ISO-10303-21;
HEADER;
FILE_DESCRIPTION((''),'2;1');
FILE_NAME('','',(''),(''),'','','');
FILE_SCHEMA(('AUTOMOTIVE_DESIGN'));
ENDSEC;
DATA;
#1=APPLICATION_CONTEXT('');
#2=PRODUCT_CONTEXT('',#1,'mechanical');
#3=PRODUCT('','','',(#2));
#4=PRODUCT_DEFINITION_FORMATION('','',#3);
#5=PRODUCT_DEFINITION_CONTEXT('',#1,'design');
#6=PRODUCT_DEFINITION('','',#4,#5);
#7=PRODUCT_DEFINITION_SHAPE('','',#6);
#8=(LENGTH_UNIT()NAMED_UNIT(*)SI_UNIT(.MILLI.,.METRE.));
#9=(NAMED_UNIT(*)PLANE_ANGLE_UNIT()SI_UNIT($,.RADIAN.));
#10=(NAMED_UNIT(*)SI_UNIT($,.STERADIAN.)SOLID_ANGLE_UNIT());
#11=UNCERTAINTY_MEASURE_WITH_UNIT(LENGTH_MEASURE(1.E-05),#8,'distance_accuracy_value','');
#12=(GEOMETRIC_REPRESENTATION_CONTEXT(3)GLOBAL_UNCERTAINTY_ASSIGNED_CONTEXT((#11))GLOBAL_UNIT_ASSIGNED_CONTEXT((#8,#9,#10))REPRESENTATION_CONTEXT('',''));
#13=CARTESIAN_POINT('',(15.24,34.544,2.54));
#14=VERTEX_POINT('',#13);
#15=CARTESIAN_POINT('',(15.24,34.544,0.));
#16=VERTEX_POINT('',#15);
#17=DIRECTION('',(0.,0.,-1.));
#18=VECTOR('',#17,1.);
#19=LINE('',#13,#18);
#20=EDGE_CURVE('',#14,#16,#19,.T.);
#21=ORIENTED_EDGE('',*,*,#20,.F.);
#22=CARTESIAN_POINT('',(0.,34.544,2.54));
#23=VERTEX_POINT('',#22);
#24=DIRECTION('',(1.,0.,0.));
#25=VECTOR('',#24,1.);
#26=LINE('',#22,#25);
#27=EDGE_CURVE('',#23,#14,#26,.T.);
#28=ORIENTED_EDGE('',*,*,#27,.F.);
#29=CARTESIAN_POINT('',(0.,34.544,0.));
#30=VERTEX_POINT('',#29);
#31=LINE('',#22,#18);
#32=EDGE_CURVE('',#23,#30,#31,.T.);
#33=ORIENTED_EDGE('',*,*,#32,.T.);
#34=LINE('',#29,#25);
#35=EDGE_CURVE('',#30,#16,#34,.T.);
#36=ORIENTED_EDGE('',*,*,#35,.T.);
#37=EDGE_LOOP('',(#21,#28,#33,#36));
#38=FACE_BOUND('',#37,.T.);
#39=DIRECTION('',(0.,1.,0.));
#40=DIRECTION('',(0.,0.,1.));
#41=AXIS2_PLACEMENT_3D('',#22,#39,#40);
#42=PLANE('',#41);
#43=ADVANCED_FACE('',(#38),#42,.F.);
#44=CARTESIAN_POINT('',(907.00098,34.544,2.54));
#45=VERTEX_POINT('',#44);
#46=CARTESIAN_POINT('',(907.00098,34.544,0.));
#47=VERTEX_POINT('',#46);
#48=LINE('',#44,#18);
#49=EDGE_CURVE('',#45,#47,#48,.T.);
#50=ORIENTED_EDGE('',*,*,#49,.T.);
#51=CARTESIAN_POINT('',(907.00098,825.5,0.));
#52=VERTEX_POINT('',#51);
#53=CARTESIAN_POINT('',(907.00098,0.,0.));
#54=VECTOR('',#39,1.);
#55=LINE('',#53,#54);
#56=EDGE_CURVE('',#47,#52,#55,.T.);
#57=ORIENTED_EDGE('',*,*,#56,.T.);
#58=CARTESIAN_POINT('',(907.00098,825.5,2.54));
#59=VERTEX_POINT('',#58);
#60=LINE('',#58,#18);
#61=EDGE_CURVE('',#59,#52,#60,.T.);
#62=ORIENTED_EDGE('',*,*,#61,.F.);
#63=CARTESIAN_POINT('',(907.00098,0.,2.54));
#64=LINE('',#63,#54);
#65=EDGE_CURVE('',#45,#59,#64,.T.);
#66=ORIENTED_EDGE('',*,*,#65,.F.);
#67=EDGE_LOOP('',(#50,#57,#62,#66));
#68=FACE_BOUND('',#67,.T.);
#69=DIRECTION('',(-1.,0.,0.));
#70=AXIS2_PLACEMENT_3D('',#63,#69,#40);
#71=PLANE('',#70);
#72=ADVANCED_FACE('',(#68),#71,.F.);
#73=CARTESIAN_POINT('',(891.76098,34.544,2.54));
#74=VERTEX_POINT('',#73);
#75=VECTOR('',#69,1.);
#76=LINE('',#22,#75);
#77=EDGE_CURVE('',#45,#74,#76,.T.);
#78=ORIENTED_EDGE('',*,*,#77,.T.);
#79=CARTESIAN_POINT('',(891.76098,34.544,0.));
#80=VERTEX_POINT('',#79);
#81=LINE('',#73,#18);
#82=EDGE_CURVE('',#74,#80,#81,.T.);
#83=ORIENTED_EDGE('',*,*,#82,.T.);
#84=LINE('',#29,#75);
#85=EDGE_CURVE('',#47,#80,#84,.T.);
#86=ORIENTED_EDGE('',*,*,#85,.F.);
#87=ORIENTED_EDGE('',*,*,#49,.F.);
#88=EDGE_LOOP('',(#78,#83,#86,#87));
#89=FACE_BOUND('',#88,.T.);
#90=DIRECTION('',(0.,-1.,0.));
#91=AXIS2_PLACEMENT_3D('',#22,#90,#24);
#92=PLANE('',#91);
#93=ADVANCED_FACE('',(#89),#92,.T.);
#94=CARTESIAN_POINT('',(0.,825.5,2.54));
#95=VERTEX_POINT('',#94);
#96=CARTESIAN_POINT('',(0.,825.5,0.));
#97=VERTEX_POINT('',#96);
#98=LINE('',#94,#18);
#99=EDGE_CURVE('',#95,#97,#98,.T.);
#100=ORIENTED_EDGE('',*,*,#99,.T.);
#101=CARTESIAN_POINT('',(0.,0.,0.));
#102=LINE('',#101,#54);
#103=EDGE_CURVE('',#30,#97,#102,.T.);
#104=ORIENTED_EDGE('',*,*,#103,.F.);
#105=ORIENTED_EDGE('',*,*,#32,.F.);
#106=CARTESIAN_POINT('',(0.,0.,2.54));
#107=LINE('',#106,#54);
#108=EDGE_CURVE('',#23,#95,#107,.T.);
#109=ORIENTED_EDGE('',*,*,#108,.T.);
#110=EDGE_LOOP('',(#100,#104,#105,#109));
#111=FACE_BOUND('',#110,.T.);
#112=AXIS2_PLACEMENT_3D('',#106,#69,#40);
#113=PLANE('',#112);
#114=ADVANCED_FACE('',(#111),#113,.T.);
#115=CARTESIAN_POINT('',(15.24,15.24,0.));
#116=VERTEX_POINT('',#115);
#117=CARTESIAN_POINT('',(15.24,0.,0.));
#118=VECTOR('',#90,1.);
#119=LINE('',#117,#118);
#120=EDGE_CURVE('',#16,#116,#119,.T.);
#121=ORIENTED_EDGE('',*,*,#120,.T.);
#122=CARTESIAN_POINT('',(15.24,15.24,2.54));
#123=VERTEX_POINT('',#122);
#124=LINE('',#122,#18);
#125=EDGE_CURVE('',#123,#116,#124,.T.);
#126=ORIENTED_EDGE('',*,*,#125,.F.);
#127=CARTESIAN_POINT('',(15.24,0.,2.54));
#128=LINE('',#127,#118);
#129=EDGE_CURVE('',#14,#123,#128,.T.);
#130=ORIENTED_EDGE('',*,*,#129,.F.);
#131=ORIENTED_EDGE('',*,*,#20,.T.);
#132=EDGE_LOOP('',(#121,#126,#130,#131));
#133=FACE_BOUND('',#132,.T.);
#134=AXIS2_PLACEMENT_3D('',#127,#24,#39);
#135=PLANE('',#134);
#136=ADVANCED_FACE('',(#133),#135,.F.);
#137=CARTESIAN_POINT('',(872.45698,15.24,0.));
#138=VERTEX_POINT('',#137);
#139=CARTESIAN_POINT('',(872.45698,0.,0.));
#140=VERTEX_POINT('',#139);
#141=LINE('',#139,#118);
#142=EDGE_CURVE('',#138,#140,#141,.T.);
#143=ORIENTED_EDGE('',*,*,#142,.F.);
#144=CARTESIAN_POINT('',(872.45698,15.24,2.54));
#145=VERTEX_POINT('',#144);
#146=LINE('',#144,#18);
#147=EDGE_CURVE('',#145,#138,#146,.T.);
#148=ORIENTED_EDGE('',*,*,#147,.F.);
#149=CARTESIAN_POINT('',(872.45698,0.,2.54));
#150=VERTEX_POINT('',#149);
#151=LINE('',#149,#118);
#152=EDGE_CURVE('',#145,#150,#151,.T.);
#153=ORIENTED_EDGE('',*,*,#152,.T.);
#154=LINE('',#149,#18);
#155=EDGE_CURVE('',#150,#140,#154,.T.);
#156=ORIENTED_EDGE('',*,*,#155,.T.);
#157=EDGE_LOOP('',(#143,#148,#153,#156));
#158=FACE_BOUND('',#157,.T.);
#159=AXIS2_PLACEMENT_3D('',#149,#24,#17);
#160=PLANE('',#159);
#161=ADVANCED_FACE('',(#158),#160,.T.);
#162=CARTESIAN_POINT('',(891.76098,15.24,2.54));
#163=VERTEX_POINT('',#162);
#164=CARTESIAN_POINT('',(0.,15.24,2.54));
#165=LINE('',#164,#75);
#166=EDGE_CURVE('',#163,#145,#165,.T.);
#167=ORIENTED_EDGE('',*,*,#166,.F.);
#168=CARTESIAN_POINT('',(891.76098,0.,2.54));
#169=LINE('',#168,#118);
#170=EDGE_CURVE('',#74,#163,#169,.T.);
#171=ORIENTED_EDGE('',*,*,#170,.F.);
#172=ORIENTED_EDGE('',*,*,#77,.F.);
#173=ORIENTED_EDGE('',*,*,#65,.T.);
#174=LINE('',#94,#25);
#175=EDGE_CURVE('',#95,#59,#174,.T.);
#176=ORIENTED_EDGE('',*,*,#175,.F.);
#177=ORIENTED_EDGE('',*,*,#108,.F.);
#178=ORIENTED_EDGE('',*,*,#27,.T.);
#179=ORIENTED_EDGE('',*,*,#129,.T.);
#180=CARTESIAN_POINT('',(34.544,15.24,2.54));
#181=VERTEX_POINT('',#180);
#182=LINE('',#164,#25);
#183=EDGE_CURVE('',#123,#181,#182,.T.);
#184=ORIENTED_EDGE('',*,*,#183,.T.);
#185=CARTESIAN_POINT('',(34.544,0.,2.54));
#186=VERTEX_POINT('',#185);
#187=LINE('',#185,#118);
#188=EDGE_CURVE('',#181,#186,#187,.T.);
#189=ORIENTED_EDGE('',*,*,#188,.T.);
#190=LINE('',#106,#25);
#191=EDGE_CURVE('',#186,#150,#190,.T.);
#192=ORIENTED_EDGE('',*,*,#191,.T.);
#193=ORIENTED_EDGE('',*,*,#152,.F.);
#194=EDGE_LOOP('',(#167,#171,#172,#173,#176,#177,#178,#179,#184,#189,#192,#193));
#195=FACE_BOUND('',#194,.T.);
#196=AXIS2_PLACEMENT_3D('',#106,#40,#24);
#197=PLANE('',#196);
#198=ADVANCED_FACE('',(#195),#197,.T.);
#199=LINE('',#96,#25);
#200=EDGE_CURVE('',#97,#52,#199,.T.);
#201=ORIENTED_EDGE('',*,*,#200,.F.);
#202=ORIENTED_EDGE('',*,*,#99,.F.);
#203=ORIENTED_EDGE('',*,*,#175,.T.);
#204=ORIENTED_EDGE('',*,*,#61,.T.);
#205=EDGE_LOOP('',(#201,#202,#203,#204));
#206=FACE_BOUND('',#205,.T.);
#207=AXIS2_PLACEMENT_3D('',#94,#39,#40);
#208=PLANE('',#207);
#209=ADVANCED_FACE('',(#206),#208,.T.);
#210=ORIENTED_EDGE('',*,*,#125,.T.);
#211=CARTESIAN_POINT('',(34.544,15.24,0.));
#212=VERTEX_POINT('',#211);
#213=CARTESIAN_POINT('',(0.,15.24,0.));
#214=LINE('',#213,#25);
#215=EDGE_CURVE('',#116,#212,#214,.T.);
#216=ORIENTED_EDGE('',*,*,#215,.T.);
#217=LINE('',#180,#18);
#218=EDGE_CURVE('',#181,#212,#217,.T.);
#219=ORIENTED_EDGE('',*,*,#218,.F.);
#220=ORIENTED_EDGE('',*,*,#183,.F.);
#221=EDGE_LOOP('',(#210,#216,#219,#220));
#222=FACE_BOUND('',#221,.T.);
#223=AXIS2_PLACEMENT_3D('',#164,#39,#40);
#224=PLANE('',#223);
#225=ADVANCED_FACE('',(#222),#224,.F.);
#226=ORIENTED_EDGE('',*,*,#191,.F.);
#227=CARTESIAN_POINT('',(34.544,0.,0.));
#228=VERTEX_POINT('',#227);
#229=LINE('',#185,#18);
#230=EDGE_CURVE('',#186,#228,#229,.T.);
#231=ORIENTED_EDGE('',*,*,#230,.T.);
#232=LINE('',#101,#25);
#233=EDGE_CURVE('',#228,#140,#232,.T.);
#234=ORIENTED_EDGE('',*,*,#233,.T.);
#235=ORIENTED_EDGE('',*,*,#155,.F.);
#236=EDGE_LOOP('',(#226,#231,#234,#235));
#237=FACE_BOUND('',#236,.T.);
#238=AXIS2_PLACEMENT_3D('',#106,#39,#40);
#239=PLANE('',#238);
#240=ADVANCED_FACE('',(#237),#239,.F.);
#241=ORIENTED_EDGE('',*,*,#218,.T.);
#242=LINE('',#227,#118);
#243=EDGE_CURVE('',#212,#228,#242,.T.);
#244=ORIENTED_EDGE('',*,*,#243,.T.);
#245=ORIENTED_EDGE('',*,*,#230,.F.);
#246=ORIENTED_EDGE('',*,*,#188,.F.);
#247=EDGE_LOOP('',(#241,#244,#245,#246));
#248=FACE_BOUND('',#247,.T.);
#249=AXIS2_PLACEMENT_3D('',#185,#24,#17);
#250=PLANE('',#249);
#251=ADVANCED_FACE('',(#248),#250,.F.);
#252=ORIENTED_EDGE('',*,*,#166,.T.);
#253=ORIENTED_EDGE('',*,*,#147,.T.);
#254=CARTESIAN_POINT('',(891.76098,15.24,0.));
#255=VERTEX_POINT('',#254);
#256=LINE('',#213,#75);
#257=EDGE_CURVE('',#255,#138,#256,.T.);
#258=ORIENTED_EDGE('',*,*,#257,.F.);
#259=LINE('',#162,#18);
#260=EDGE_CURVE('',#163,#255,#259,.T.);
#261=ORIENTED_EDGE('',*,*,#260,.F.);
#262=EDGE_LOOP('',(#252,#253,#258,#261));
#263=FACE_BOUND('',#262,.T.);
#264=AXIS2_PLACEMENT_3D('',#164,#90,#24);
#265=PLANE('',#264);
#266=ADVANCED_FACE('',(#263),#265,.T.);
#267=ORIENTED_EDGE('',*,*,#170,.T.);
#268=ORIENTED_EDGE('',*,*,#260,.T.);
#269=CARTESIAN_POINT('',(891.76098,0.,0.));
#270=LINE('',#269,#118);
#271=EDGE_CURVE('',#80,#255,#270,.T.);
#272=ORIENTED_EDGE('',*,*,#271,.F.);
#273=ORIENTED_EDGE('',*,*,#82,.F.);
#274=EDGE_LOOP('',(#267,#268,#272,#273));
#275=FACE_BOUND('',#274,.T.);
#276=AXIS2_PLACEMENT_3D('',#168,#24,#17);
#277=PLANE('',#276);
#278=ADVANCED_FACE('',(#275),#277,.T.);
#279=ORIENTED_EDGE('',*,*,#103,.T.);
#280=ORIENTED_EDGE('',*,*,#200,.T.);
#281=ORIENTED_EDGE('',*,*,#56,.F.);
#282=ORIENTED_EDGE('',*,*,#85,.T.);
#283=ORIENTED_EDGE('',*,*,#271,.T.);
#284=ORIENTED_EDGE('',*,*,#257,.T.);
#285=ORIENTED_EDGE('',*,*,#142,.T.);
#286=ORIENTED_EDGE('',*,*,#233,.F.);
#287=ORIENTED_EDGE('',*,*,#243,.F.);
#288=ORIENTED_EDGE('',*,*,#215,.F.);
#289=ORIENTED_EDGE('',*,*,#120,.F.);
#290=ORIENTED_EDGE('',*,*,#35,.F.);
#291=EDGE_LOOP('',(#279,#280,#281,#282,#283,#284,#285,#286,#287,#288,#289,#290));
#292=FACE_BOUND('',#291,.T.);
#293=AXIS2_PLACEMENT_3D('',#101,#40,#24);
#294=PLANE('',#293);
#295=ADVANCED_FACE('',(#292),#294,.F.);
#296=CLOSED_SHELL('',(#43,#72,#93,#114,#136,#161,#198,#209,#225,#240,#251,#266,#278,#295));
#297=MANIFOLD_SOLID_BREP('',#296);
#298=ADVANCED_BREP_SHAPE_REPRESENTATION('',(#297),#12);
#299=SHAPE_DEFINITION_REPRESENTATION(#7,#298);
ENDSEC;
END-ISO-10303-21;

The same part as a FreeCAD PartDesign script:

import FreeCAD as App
import Part
import Sketcher
Q = App.Units.Quantity


def add_polygon(sketch, points):
    """Adds a closed chain of lines whose ends are joined by coincident constraints."""
    first, n = sketch.GeometryCount, len(points)
    for a, b in zip(points, points[1:] + points[:1]):
        sketch.addGeometry(Part.LineSegment(App.Vector(*a, 0), App.Vector(*b, 0)), False)
    for i in range(n):
        sketch.addConstraint(Sketcher.Constraint("Coincident", first + i, 2, first + (i + 1) % n, 1))

doc = App.newDocument("Part")
body = doc.addObject("PartDesign::Body", "Body")

# Sketch on XY plane
sketch1 = body.newObject("Sketcher::SketchObject", "Sketch")
sketch1.AttachmentSupport = (doc.getObject("XY_Plane"), [""])
sketch1.MapMode = "FlatFace"
add_polygon(sketch1, [(0, 826), (0, 35), (15, 35), (15, 15), (35, 15), (35, 0), (872, 0), (872, 15), (892, 15), (892, 35), (907, 35), (907, 826)])  # lines 0-11
sketch1.addConstraint(Sketcher.Constraint("Vertical", 0))
sketch1.addConstraint(Sketcher.Constraint("Horizontal", 1))
sketch1.addConstraint(Sketcher.Constraint("Vertical", 2))
sketch1.addConstraint(Sketcher.Constraint("Horizontal", 3))
sketch1.addConstraint(Sketcher.Constraint("Vertical", 4))
sketch1.addConstraint(Sketcher.Constraint("Horizontal", 5))
sketch1.addConstraint(Sketcher.Constraint("Vertical", 6))
sketch1.addConstraint(Sketcher.Constraint("Horizontal", 7))
sketch1.addConstraint(Sketcher.Constraint("Vertical", 8))
sketch1.addConstraint(Sketcher.Constraint("Horizontal", 9))
sketch1.addConstraint(Sketcher.Constraint("Vertical", 10))
sketch1.addConstraint(Sketcher.Constraint("Horizontal", 11))
sketch1.addConstraint(Sketcher.Constraint("PointOnObject", 0, 2, -2))
sketch1.addConstraint(Sketcher.Constraint("PointOnObject", 4, 2, -1))
sketch1.addConstraint(Sketcher.Constraint("Horizontal", 3, 2, 6, 2))
sketch1.addConstraint(Sketcher.Constraint("Horizontal", 1, 2, 8, 2))
sketch1.addConstraint(Sketcher.Constraint("Equal", 3, 7))
sketch1.addConstraint(Sketcher.Constraint("Equal", 1, 9))
sketch1.addConstraint(Sketcher.Constraint("Equal", 7, 2))
sketch1.addConstraint(Sketcher.Constraint("Equal", 9, 4))
sketch1.addConstraint(Sketcher.Constraint("DistanceX", 1, 1, 1, 2, Q("0.6 in")))
sketch1.addConstraint(Sketcher.Constraint("DistanceX", 3, 1, 3, 2, Q("0.76 in")))
sketch1.addConstraint(Sketcher.Constraint("DistanceY", 0, 2, 0, 1, Q("31.14 in")))
sketch1.addConstraint(Sketcher.Constraint("DistanceX", 5, 1, 5, 2, Q("32.9887 in")))
pad1 = body.newObject("PartDesign::Pad", "Pad")
pad1.Profile = sketch1
pad1.Length = Q("0.1 in")

doc.recompute()
